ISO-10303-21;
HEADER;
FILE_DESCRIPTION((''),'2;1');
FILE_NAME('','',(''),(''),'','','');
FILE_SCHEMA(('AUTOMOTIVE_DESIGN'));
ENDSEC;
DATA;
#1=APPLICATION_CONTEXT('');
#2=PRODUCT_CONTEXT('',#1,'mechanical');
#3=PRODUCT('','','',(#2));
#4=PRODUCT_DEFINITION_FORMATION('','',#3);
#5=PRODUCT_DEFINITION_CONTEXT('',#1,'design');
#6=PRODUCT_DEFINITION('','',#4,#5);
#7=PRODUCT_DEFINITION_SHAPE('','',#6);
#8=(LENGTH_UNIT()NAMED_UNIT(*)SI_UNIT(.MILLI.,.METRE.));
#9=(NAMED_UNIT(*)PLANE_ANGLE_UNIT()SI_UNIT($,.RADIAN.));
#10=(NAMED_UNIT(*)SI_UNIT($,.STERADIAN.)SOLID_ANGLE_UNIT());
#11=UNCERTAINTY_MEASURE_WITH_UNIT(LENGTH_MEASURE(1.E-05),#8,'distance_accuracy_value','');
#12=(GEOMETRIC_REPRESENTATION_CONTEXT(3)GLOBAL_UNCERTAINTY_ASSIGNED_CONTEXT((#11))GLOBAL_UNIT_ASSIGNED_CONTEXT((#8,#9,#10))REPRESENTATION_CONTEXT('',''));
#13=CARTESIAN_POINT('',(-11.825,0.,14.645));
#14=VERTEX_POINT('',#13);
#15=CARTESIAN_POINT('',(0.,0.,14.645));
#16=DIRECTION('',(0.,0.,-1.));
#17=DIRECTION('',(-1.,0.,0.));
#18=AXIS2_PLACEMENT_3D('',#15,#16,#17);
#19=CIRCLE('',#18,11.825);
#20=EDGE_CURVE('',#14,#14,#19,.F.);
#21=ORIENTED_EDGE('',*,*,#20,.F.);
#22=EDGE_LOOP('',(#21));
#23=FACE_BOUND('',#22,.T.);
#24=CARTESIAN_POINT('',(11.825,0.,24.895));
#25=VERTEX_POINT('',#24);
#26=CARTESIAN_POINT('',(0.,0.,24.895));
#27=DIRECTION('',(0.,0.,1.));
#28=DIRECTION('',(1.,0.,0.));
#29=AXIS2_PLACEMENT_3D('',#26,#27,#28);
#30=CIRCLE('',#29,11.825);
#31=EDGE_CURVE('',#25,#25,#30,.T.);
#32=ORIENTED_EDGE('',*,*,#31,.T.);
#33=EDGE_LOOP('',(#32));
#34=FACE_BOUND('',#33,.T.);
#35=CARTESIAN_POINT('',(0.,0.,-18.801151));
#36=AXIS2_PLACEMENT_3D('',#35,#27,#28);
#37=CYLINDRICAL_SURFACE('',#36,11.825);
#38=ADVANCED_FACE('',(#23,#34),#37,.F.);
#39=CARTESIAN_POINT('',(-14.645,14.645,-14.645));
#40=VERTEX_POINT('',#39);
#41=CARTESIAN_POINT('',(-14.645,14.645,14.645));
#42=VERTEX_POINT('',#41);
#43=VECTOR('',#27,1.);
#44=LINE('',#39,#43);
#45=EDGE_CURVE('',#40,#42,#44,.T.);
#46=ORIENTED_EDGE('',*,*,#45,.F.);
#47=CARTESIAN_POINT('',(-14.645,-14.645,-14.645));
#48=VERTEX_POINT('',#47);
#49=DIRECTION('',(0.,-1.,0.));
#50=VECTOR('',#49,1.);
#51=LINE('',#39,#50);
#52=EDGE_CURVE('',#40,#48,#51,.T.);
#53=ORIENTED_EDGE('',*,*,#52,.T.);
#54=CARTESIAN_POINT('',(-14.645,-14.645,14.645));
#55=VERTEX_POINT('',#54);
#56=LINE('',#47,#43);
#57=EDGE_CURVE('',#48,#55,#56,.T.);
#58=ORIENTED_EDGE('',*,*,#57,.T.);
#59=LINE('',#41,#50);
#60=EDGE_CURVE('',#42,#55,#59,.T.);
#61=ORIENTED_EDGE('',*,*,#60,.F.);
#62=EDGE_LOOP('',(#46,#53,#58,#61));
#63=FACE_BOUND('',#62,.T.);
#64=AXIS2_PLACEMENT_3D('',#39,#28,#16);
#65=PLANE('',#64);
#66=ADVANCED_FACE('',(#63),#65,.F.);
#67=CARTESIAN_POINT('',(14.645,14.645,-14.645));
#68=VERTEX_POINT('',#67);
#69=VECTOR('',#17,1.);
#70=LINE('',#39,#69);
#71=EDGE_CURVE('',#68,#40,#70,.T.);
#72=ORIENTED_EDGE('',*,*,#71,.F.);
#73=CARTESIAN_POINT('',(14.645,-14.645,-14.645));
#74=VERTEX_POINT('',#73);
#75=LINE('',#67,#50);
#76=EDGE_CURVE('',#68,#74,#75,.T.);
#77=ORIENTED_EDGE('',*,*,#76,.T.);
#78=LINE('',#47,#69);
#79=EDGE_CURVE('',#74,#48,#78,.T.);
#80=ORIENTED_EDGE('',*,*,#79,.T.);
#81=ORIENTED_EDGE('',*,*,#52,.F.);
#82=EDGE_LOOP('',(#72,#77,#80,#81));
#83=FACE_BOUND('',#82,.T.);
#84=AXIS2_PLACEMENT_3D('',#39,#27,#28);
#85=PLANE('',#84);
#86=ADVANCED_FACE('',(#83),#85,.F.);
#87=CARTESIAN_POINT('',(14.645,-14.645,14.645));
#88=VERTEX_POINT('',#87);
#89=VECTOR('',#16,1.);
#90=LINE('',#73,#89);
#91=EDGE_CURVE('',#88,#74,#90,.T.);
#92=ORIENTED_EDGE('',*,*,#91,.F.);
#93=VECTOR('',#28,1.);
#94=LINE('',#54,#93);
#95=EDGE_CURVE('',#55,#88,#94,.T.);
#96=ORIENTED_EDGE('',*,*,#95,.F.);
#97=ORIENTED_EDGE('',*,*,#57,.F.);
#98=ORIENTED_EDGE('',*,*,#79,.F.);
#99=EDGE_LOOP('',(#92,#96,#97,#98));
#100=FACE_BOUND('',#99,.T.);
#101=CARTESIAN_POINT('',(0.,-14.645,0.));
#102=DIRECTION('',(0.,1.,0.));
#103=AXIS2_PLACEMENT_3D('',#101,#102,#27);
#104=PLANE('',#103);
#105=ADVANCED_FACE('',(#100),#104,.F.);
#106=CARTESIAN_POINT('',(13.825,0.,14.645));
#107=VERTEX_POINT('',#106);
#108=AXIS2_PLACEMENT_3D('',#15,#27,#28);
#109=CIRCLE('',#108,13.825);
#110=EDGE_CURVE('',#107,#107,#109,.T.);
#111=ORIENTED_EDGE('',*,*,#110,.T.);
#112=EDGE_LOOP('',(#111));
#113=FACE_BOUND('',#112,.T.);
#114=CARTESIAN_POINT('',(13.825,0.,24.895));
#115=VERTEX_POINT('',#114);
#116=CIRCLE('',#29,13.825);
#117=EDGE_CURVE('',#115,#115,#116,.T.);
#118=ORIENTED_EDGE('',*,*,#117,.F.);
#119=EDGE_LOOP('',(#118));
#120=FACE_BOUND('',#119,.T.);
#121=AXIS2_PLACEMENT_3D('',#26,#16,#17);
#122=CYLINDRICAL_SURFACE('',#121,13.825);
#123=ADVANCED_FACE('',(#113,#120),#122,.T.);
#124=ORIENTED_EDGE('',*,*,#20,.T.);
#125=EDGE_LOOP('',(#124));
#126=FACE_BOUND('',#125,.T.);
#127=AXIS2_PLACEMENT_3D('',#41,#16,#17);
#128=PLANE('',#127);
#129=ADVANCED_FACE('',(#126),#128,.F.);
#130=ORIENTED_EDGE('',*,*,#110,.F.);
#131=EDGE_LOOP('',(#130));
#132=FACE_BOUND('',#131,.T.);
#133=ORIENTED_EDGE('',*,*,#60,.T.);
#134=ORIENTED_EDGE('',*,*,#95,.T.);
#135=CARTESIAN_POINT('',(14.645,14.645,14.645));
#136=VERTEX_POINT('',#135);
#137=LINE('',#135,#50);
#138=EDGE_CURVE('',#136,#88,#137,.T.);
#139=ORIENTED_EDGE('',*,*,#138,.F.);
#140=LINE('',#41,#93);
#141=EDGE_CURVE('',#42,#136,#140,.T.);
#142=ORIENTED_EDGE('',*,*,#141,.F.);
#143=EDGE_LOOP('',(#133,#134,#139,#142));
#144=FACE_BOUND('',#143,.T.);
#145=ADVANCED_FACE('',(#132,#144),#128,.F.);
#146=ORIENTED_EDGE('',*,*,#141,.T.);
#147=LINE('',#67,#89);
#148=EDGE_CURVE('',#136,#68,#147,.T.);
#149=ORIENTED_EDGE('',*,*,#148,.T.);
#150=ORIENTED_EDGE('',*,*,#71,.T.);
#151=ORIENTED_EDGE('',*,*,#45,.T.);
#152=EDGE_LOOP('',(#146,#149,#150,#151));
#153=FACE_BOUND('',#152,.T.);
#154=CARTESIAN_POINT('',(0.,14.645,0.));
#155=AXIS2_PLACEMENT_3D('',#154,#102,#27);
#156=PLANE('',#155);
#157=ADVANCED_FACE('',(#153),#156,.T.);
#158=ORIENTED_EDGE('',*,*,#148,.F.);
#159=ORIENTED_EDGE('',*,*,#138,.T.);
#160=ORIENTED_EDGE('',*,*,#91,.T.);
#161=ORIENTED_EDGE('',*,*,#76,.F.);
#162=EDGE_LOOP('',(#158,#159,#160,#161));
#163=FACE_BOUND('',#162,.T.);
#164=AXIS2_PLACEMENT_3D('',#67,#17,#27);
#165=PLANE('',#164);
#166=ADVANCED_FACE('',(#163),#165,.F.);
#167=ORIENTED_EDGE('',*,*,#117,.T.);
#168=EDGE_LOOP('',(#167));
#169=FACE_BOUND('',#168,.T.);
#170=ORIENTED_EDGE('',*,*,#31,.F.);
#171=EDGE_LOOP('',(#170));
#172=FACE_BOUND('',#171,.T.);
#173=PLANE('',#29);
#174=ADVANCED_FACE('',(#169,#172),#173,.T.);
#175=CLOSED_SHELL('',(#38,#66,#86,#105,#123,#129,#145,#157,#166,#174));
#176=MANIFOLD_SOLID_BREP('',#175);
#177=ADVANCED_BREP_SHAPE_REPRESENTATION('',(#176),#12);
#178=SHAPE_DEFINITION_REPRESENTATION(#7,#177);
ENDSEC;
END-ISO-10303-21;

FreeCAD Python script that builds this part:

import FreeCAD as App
import Part
import Sketcher
from FreeCAD import Vector
Q = App.Units.Quantity

doc = App.newDocument("Part")
body = doc.addObject("PartDesign::Body", "Body")

# Sketch on XZ plane
sketch1 = body.newObject("Sketcher::SketchObject", "Sketch")
sketch1.AttachmentSupport = (doc.getObject("XZ_Plane"), [""])
sketch1.MapMode = "FlatFace"
sketch1.addGeometry(Part.LineSegment(Vector(-14.645, -14.645, 0), Vector(-14.645, 14.645, 0)), False)
sketch1.addGeometry(Part.LineSegment(Vector(-14.645, 14.645, 0), Vector(14.645, 14.645, 0)), False)
sketch1.addGeometry(Part.LineSegment(Vector(14.645, 14.645, 0), Vector(14.645, -14.645, 0)), False)
sketch1.addGeometry(Part.LineSegment(Vector(14.645, -14.645, 0), Vector(-14.645, -14.645, 0)), False)
sketch1.addConstraint(Sketcher.Constraint("Coincident", 0, 2, 1, 1))
sketch1.addConstraint(Sketcher.Constraint("Coincident", 1, 2, 2, 1))
sketch1.addConstraint(Sketcher.Constraint("Coincident", 2, 2, 3, 1))
sketch1.addConstraint(Sketcher.Constraint("Coincident", 3, 2, 0, 1))
sketch1.addConstraint(Sketcher.Constraint("Vertical", 0))
sketch1.addConstraint(Sketcher.Constraint("Horizontal", 1))
sketch1.addConstraint(Sketcher.Constraint("Vertical", 2))
sketch1.addConstraint(Sketcher.Constraint("Horizontal", 3))
sketch1.addConstraint(Sketcher.Constraint("Symmetric", 0, 2, 2, 2, -1, 1))
sketch1.addConstraint(Sketcher.Constraint("Equal", 3, 0))
sketch1.addConstraint(Sketcher.Constraint("DistanceX", 1, 1, 1, 2, Q("29.29 mm")))
pad1 = body.newObject("PartDesign::Pad", "Pad")
pad1.Profile = sketch1
pad1.Length = 29.29
pad1.Midplane = True

# Sketch on XY plane
sketch2 = body.newObject("Sketcher::SketchObject", "Sketch001")
sketch2.AttachmentSupport = (doc.getObject("XY_Plane"), [""])
sketch2.MapMode = "FlatFace"
sketch2.AttachmentOffset = App.Placement(Vector(0, 0, 14.645), App.Rotation())
sketch2.addGeometry(Part.Circle(Vector(0, 0, 0), Vector(0, 0, 1), 13.825), False)
sketch2.addConstraint(Sketcher.Constraint("Coincident", 0, 3, -1, 1))
sketch2.addConstraint(Sketcher.Constraint("Diameter", 0, Q("27.65 mm")))
pad2 = body.newObject("PartDesign::Pad", "Pad001")
pad2.Profile = sketch2
pad2.Length = 10.25

# Sketch on XY plane
sketch3 = body.newObject("Sketcher::SketchObject", "Sketch002")
sketch3.AttachmentSupport = (doc.getObject("XY_Plane"), [""])
sketch3.MapMode = "FlatFace"
sketch3.AttachmentOffset = App.Placement(Vector(0, 0, 24.895), App.Rotation())
sketch3.addGeometry(Part.Circle(Vector(0, 0, 0), Vector(0, 0, 1), 11.825), False)
sketch3.addConstraint(Sketcher.Constraint("Coincident", 0, 3, -1, 1))
sketch3.addConstraint(Sketcher.Constraint("Diameter", 0, Q("23.65 mm")))
pocket1 = body.newObject("PartDesign::Pocket", "Pocket")
pocket1.Profile = sketch3
pocket1.Length = 10.25

doc.recompute()
